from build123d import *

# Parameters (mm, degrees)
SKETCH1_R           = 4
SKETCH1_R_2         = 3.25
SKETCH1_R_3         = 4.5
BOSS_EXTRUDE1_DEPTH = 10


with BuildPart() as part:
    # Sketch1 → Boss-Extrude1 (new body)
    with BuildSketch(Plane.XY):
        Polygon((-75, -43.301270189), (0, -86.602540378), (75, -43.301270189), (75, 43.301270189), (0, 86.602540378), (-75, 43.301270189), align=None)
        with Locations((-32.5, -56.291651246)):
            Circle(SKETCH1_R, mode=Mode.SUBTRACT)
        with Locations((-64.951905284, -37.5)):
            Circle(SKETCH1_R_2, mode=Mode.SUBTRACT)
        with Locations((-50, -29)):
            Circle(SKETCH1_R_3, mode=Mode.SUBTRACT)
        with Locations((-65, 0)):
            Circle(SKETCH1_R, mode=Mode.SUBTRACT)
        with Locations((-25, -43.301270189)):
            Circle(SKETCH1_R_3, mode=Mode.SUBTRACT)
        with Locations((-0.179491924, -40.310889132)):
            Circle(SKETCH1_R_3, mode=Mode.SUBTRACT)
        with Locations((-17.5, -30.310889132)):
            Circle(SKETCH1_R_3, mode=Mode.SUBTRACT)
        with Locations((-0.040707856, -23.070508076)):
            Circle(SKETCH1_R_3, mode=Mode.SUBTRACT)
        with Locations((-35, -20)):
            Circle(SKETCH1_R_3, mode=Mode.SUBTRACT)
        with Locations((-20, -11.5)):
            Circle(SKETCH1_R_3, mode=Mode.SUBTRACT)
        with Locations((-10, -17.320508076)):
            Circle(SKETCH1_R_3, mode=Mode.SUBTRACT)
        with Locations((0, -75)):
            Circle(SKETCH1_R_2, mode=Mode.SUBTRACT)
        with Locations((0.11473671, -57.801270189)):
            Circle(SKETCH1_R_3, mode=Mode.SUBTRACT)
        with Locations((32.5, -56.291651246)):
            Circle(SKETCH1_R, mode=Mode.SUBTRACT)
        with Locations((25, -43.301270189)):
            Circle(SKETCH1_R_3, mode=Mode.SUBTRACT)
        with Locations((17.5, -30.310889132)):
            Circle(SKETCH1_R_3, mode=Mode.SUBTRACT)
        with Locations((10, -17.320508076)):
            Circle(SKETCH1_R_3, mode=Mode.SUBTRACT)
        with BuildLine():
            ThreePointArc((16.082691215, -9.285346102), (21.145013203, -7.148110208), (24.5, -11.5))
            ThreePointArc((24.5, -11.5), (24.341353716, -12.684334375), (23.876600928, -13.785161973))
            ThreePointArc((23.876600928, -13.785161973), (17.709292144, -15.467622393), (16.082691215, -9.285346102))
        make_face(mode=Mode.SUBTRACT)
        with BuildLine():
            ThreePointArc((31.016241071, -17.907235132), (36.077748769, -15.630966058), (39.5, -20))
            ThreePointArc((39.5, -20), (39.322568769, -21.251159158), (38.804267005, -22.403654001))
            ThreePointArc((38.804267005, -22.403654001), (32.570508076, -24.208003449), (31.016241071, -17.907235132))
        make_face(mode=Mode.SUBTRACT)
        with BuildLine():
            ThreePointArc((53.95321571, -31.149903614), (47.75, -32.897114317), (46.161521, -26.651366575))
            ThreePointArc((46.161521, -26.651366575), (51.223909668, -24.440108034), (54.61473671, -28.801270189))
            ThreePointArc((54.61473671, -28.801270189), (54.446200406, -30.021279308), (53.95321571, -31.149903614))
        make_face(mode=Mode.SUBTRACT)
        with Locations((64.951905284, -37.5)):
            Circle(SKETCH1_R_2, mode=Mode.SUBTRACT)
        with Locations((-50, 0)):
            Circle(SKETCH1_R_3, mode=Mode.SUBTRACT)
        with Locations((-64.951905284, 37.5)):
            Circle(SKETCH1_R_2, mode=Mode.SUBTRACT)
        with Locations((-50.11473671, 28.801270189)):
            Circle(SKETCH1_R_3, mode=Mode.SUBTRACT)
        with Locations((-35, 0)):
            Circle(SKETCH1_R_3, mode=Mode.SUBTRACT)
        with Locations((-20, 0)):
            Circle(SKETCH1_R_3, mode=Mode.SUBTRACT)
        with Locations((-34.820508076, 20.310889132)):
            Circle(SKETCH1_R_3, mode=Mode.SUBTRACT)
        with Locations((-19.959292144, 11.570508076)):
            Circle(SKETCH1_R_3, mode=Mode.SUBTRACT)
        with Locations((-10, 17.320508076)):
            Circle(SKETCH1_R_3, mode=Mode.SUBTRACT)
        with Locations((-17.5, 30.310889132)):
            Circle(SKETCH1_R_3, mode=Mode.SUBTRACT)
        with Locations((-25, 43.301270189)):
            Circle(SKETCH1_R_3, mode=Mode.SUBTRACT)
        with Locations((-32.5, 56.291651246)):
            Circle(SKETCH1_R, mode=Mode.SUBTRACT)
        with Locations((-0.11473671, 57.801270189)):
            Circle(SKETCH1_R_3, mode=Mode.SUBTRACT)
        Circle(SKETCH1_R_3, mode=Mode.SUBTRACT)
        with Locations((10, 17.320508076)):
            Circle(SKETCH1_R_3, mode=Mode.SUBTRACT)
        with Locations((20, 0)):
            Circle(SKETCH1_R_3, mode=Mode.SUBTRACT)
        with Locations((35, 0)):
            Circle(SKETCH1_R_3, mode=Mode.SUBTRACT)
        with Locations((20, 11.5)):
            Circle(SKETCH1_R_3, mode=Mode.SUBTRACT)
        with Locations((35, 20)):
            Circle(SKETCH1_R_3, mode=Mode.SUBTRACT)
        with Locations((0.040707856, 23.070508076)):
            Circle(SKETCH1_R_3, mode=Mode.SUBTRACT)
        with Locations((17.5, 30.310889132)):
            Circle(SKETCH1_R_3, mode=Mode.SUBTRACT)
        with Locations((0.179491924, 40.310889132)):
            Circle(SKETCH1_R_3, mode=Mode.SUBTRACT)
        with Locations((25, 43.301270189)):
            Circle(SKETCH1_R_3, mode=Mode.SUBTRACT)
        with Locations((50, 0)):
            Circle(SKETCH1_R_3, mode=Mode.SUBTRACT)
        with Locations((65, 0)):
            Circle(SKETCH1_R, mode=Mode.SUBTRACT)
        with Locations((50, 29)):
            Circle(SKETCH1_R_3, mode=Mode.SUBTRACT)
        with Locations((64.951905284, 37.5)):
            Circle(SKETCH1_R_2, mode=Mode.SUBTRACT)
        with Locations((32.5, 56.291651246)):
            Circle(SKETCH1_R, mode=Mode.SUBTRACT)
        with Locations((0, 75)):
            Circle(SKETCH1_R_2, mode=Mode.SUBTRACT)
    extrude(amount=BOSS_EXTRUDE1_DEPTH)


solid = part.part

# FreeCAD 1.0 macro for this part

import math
import FreeCAD as App
import Part
import Sketcher

V = App.Vector
Q = App.Units.Quantity


def add_polygon(sketch, points):
    """Adds a closed chain of lines whose ends are joined by coincident constraints."""
    first, n = sketch.GeometryCount, len(points)
    for a, b in zip(points, points[1:] + points[:1]):
        sketch.addGeometry(Part.LineSegment(App.Vector(*a, 0), App.Vector(*b, 0)), False)
    for i in range(n):
        sketch.addConstraint(Sketcher.Constraint("Coincident", first + i, 2, first + (i + 1) % n, 1))

doc = App.newDocument("Part")
body = doc.addObject("PartDesign::Body", "Body")

# Sketch on XY plane
sketch1 = doc.addObject("Sketcher::SketchObject", "Sketch")
body.addObject(sketch1)
sketch1.AttachmentSupport = (doc.XY_Plane, [""])
sketch1.MapMode = "FlatFace"
add_polygon(sketch1, [(-75, -43.3), (0, -86.6), (75, -43.3), (75, 43.3), (0, 86.6), (-75, 43.3)])  # lines 0-5
sketch1.addGeometry(Part.Circle(V(-32.5, -56.3, 0), V(0, 0, 1), 4), False)  # 6
sketch1.addGeometry(Part.Circle(V(-25, -43.3, 0), V(0, 0, 1), 4.5), False)  # 7
sketch1.addGeometry(Part.Circle(V(-0.2, -40.3, 0), V(0, 0, 1), 4.5), False)  # 8
sketch1.addGeometry(Part.Circle(V(-65, -37.5, 0), V(0, 0, 1), 3.2), False)  # 9
sketch1.addGeometry(Part.Circle(V(-50, -29, 0), V(0, 0, 1), 4.5), False)  # 10
sketch1.addGeometry(Part.Circle(V(-35, -20, 0), V(0, 0, 1), 4.5), False)  # 11
sketch1.addGeometry(Part.Circle(V(-17.5, -30.3, 0), V(0, 0, 1), 4.5), False)  # 12
sketch1.addGeometry(Part.Circle(V(0, -23.1, 0), V(0, 0, 1), 4.5), False)  # 13
sketch1.addGeometry(Part.Circle(V(-20, -11.5, 0), V(0, 0, 1), 4.5), False)  # 14
sketch1.addGeometry(Part.Circle(V(-10, -17.3, 0), V(0, 0, 1), 4.5), False)  # 15
sketch1.addGeometry(Part.Circle(V(0, -75, 0), V(0, 0, 1), 3.2), False)  # 16
sketch1.addGeometry(Part.Circle(V(0.1, -57.8, 0), V(0, 0, 1), 4.5), False)  # 17
sketch1.addGeometry(Part.Circle(V(32.5, -56.3, 0), V(0, 0, 1), 4), False)  # 18
sketch1.addGeometry(Part.Circle(V(25, -43.3, 0), V(0, 0, 1), 4.5), False)  # 19
sketch1.addGeometry(Part.Circle(V(17.5, -30.3, 0), V(0, 0, 1), 4.5), False)  # 20
sketch1.addGeometry(Part.Circle(V(10, -17.3, 0), V(0, 0, 1), 4.5), False)  # 21
sketch1.addGeometry(Part.ArcOfCircle(Part.Circle(V(20, -11.6, 0), V(0, 0, 1), 4.5), math.radians(149), math.radians(331)), False)  # 22
sketch1.addGeometry(Part.ArcOfCircle(Part.Circle(V(20, -11.5, 0), V(0, 0, 1), 4.5), math.radians(0), math.radians(151)), False)  # 23
sketch1.addGeometry(Part.ArcOfCircle(Part.Circle(V(20, -11.5, 0), V(0, 0, 1), 4.5), math.radians(-31), math.radians(0)), False)  # 24
sketch1.addGeometry(Part.ArcOfCircle(Part.Circle(V(34.8, -20.3, 0), V(0, 0, 1), 4.5), math.radians(148), math.radians(332)), False)  # 25
sketch1.addGeometry(Part.ArcOfCircle(Part.Circle(V(35, -20, 0), V(0, 0, 1), 4.5), math.radians(0), math.radians(152)), False)  # 26
sketch1.addGeometry(Part.ArcOfCircle(Part.Circle(V(35, -20, 0), V(0, 0, 1), 4.5), math.radians(-32), math.radians(0)), False)  # 27
sketch1.addGeometry(Part.ArcOfCircle(Part.Circle(V(50.1, -28.8, 0), V(0, 0, 1), 4.5), math.radians(-31), math.radians(0)), False)  # 28
sketch1.addGeometry(Part.ArcOfCircle(Part.Circle(V(50, -29, 0), V(0, 0, 1), 4.5), math.radians(149), math.radians(331)), False)  # 29
sketch1.addGeometry(Part.ArcOfCircle(Part.Circle(V(50.1, -28.8, 0), V(0, 0, 1), 4.5), math.radians(0), math.radians(151)), False)  # 30
sketch1.addGeometry(Part.Circle(V(65, -37.5, 0), V(0, 0, 1), 3.2), False)  # 31
sketch1.addGeometry(Part.Circle(V(-65, 0, 0), V(0, 0, 1), 4), False)  # 32
sketch1.addGeometry(Part.Circle(V(-50, 0, 0), V(0, 0, 1), 4.5), False)  # 33
sketch1.addGeometry(Part.Circle(V(-35, 0, 0), V(0, 0, 1), 4.5), False)  # 34
sketch1.addGeometry(Part.Circle(V(-65, 37.5, 0), V(0, 0, 1), 3.2), False)  # 35
sketch1.addGeometry(Part.Circle(V(-50.1, 28.8, 0), V(0, 0, 1), 4.5), False)  # 36
sketch1.addGeometry(Part.Circle(V(-34.8, 20.3, 0), V(0, 0, 1), 4.5), False)  # 37
sketch1.addGeometry(Part.Circle(V(-20, 0, 0), V(0, 0, 1), 4.5), False)  # 38
sketch1.addGeometry(Part.Circle(V(-20, 11.6, 0), V(0, 0, 1), 4.5), False)  # 39
sketch1.addGeometry(Part.Circle(V(-10, 17.3, 0), V(0, 0, 1), 4.5), False)  # 40
sketch1.addGeometry(Part.Circle(V(-17.5, 30.3, 0), V(0, 0, 1), 4.5), False)  # 41
sketch1.addGeometry(Part.Circle(V(-25, 43.3, 0), V(0, 0, 1), 4.5), False)  # 42
sketch1.addGeometry(Part.Circle(V(-32.5, 56.3, 0), V(0, 0, 1), 4), False)  # 43
sketch1.addGeometry(Part.Circle(V(-0.1, 57.8, 0), V(0, 0, 1), 4.5), False)  # 44
sketch1.addGeometry(Part.Circle(V(0, 0, 0), V(0, 0, 1), 4.5), False)  # 45
sketch1.addGeometry(Part.Circle(V(10, 17.3, 0), V(0, 0, 1), 4.5), False)  # 46
sketch1.addGeometry(Part.Circle(V(20, 0, 0), V(0, 0, 1), 4.5), False)  # 47
sketch1.addGeometry(Part.Circle(V(20, 11.5, 0), V(0, 0, 1), 4.5), False)  # 48
sketch1.addGeometry(Part.Circle(V(0, 23.1, 0), V(0, 0, 1), 4.5), False)  # 49
sketch1.addGeometry(Part.Circle(V(17.5, 30.3, 0), V(0, 0, 1), 4.5), False)  # 50
sketch1.addGeometry(Part.Circle(V(35, 0, 0), V(0, 0, 1), 4.5), False)  # 51
sketch1.addGeometry(Part.Circle(V(50, 0, 0), V(0, 0, 1), 4.5), False)  # 52
sketch1.addGeometry(Part.Circle(V(65, 0, 0), V(0, 0, 1), 4), False)  # 53
sketch1.addGeometry(Part.Circle(V(35, 20, 0), V(0, 0, 1), 4.5), False)  # 54
sketch1.addGeometry(Part.Circle(V(50, 29, 0), V(0, 0, 1), 4.5), False)  # 55
sketch1.addGeometry(Part.Circle(V(65, 37.5, 0), V(0, 0, 1), 3.2), False)  # 56
sketch1.addGeometry(Part.Circle(V(0.2, 40.3, 0), V(0, 0, 1), 4.5), False)  # 57
sketch1.addGeometry(Part.Circle(V(25, 43.3, 0), V(0, 0, 1), 4.5), False)  # 58
sketch1.addGeometry(Part.Circle(V(32.5, 56.3, 0), V(0, 0, 1), 4), False)  # 59
sketch1.addGeometry(Part.Circle(V(0, 75, 0), V(0, 0, 1), 3.2), False)  # 60
sketch1.addConstraint(Sketcher.Constraint("Coincident", 22, 1, 23, 2))
sketch1.addConstraint(Sketcher.Constraint("Tangent", 23, 1, 24, 2))
sketch1.addConstraint(Sketcher.Constraint("Coincident", 24, 1, 22, 2))
sketch1.addConstraint(Sketcher.Constraint("Coincident", 25, 1, 26, 2))
sketch1.addConstraint(Sketcher.Constraint("Tangent", 26, 1, 27, 2))
sketch1.addConstraint(Sketcher.Constraint("Coincident", 27, 1, 25, 2))
sketch1.addConstraint(Sketcher.Constraint("Coincident", 28, 1, 29, 2))
sketch1.addConstraint(Sketcher.Constraint("Coincident", 29, 1, 30, 2))
sketch1.addConstraint(Sketcher.Constraint("Tangent", 30, 1, 28, 2))
sketch1.addConstraint(Sketcher.Constraint("Vertical", 2))
sketch1.addConstraint(Sketcher.Constraint("Vertical", 5))
sketch1.addConstraint(Sketcher.Constraint("Coincident", 45, 3, -1, 1))
sketch1.addConstraint(Sketcher.Constraint("Equal", 7, 8))
sketch1.addConstraint(Sketcher.Constraint("Equal", 8, 10))
sketch1.addConstraint(Sketcher.Constraint("Equal", 10, 11))
sketch1.addConstraint(Sketcher.Constraint("Equal", 11, 12))
sketch1.addConstraint(Sketcher.Constraint("Equal", 12, 13))
sketch1.addConstraint(Sketcher.Constraint("Equal", 13, 14))
sketch1.addConstraint(Sketcher.Constraint("Equal", 14, 15))
sketch1.addConstraint(Sketcher.Constraint("Equal", 9, 16))
sketch1.addConstraint(Sketcher.Constraint("Equal", 15, 17))
sketch1.addConstraint(Sketcher.Constraint("Equal", 6, 18))
sketch1.addConstraint(Sketcher.Constraint("Equal", 17, 19))
sketch1.addConstraint(Sketcher.Constraint("Equal", 19, 20))
sketch1.addConstraint(Sketcher.Constraint("Equal", 20, 21))
sketch1.addConstraint(Sketcher.Constraint("Equal", 21, 22))
sketch1.addConstraint(Sketcher.Constraint("Equal", 22, 23))
sketch1.addConstraint(Sketcher.Constraint("Equal", 23, 24))
sketch1.addConstraint(Sketcher.Constraint("Equal", 24, 25))
sketch1.addConstraint(Sketcher.Constraint("Equal", 25, 26))
sketch1.addConstraint(Sketcher.Constraint("Equal", 26, 27))
sketch1.addConstraint(Sketcher.Constraint("Equal", 27, 28))
sketch1.addConstraint(Sketcher.Constraint("Equal", 28, 29))
sketch1.addConstraint(Sketcher.Constraint("Equal", 29, 30))
sketch1.addConstraint(Sketcher.Constraint("Equal", 16, 31))
sketch1.addConstraint(Sketcher.Constraint("Equal", 18, 32))
sketch1.addConstraint(Sketcher.Constraint("Equal", 30, 33))
sketch1.addConstraint(Sketcher.Constraint("Equal", 33, 34))
sketch1.addConstraint(Sketcher.Constraint("Equal", 31, 35))
sketch1.addConstraint(Sketcher.Constraint("Equal", 34, 36))
sketch1.addConstraint(Sketcher.Constraint("Equal", 36, 37))
sketch1.addConstraint(Sketcher.Constraint("Equal", 37, 38))
sketch1.addConstraint(Sketcher.Constraint("Equal", 38, 39))
sketch1.addConstraint(Sketcher.Constraint("Equal", 39, 40))
sketch1.addConstraint(Sketcher.Constraint("Equal", 40, 41))
sketch1.addConstraint(Sketcher.Constraint("Equal", 41, 42))
sketch1.addConstraint(Sketcher.Constraint("Equal", 32, 43))
sketch1.addConstraint(Sketcher.Constraint("Equal", 42, 44))
sketch1.addConstraint(Sketcher.Constraint("Equal", 44, 45))
sketch1.addConstraint(Sketcher.Constraint("Equal", 45, 46))
sketch1.addConstraint(Sketcher.Constraint("Equal", 46, 47))
sketch1.addConstraint(Sketcher.Constraint("Equal", 47, 48))
sketch1.addConstraint(Sketcher.Constraint("Equal", 48, 49))
sketch1.addConstraint(Sketcher.Constraint("Equal", 49, 50))
sketch1.addConstraint(Sketcher.Constraint("Equal", 50, 51))
sketch1.addConstraint(Sketcher.Constraint("Equal", 51, 52))
sketch1.addConstraint(Sketcher.Constraint("Equal", 43, 53))
sketch1.addConstraint(Sketcher.Constraint("Equal", 52, 54))
sketch1.addConstraint(Sketcher.Constraint("Equal", 54, 55))
sketch1.addConstraint(Sketcher.Constraint("Equal", 35, 56))
sketch1.addConstraint(Sketcher.Constraint("Equal", 55, 57))
sketch1.addConstraint(Sketcher.Constraint("Equal", 57, 58))
sketch1.addConstraint(Sketcher.Constraint("Equal", 53, 59))
sketch1.addConstraint(Sketcher.Constraint("Equal", 56, 60))
sketch1.addConstraint(Sketcher.Constraint("Symmetric", 31, 3, 35, 3, -1, 1))
sketch1.addConstraint(Sketcher.Constraint("Symmetric", 28, 3, 36, 3, -1, 1))
sketch1.addConstraint(Sketcher.Constraint("Symmetric", 25, 3, 37, 3, -1, 1))
sketch1.addConstraint(Sketcher.Constraint("Symmetric", 22, 3, 39, 3, -1, 1))
sketch1.addConstraint(Sketcher.Constraint("Symmetric", 21, 3, 40, 3, -1, 1))
sketch1.addConstraint(Sketcher.Constraint("Symmetric", 20, 3, 41, 3, -1, 1))
sketch1.addConstraint(Sketcher.Constraint("Symmetric", 19, 3, 42, 3, -1, 1))
sketch1.addConstraint(Sketcher.Constraint("Symmetric", 18, 3, 43, 3, -1, 1))
sketch1.addConstraint(Sketcher.Constraint("Symmetric", 17, 3, 44, 3, -1, 1))
sketch1.addConstraint(Sketcher.Constraint("Symmetric", 15, 3, 46, 3, -1, 1))
sketch1.addConstraint(Sketcher.Constraint("Symmetric", 38, 3, 47, 3, -1, 1))
sketch1.addConstraint(Sketcher.Constraint("Symmetric", 14, 3, 48, 3, -1, 1))
sketch1.addConstraint(Sketcher.Constraint("Symmetric", 13, 3, 49, 3, -1, 1))
sketch1.addConstraint(Sketcher.Constraint("Symmetric", 12, 3, 50, 3, -1, 1))
sketch1.addConstraint(Sketcher.Constraint("Symmetric", 34, 3, 51, 3, -1, 1))
sketch1.addConstraint(Sketcher.Constraint("Symmetric", 33, 3, 52, 3, -1, 1))
sketch1.addConstraint(Sketcher.Constraint("Symmetric", 32, 3, 53, 3, -1, 1))
sketch1.addConstraint(Sketcher.Constraint("Symmetric", 11, 3, 54, 3, -1, 1))
sketch1.addConstraint(Sketcher.Constraint("Symmetric", 10, 3, 55, 3, -1, 1))
sketch1.addConstraint(Sketcher.Constraint("Symmetric", 9, 3, 56, 3, -1, 1))
sketch1.addConstraint(Sketcher.Constraint("Symmetric", 8, 3, 57, 3, -1, 1))
sketch1.addConstraint(Sketcher.Constraint("Symmetric", 7, 3, 58, 3, -1, 1))
sketch1.addConstraint(Sketcher.Constraint("Symmetric", 6, 3, 59, 3, -1, 1))
sketch1.addConstraint(Sketcher.Constraint("Symmetric", 16, 3, 60, 3, -1, 1))
sketch1.addConstraint(Sketcher.Constraint("Symmetric", 0, 2, 3, 2, -1, 1))
sketch1.addConstraint(Sketcher.Constraint("Symmetric", 1, 2, 4, 2, -1, 1))
sketch1.addConstraint(Sketcher.Constraint("Symmetric", 6, 3, 18, 3, -2))
sketch1.addConstraint(Sketcher.Constraint("Symmetric", 7, 3, 19, 3, -2))
sketch1.addConstraint(Sketcher.Constraint("Symmetric", 12, 3, 20, 3, -2))
sketch1.addConstraint(Sketcher.Constraint("Symmetric", 15, 3, 21, 3, -2))
sketch1.addConstraint(Sketcher.Constraint("Symmetric", 14, 3, 23, 3, -2))
sketch1.addConstraint(Sketcher.Constraint("Symmetric", 11, 3, 26, 3, -2))
sketch1.addConstraint(Sketcher.Constraint("Symmetric", 10, 3, 29, 3, -2))
sketch1.addConstraint(Sketcher.Constraint("Symmetric", 9, 3, 31, 3, -2))
sketch1.addConstraint(Sketcher.Constraint("PointOnObject", 16, 3, -2))
sketch1.addConstraint(Sketcher.Constraint("PointOnObject", 32, 3, -1))
sketch1.addConstraint(Sketcher.Constraint("PointOnObject", 33, 3, -1))
sketch1.addConstraint(Sketcher.Constraint("PointOnObject", 34, 3, -1))
sketch1.addConstraint(Sketcher.Constraint("PointOnObject", 38, 3, -1))
sketch1.addConstraint(Sketcher.Constraint("PointOnObject", 0, 2, -2))
sketch1.addConstraint(Sketcher.Constraint("Parallel", 0, 3))
sketch1.addConstraint(Sketcher.Constraint("Horizontal", 19, 3, 1, 2))
sketch1.addConstraint(Sketcher.Constraint("Horizontal", 58, 3, 2, 2))
sketch1.addConstraint(Sketcher.Constraint("Horizontal", 24, 3, 23, 1))
sketch1.addConstraint(Sketcher.Constraint("Horizontal", 27, 3, 26, 1))
sketch1.addConstraint(Sketcher.Constraint("Horizontal", 28, 3, 30, 1))
sketch1.addConstraint(Sketcher.Constraint("Vertical", 10, 3, 33, 3))
sketch1.addConstraint(Sketcher.Constraint("Vertical", 11, 3, 34, 3))
sketch1.addConstraint(Sketcher.Constraint("Vertical", 14, 3, 38, 3))
sketch1.addConstraint(Sketcher.Constraint("Diameter", 6, 8.0))
sketch1.addConstraint(Sketcher.Constraint("Diameter", 7, 9.0))
sketch1.addConstraint(Sketcher.Constraint("Diameter", 9, 6.5))
sketch1.addConstraint(Sketcher.Constraint("Angle", 0, Q("-30 deg")))
sketch1.addConstraint(Sketcher.Constraint("DistanceX", 7, 3, -1, 1, 25.0))
sketch1.addConstraint(Sketcher.Constraint("DistanceX", 10, 3, -1, 1, 50.0))
sketch1.addConstraint(Sketcher.Constraint("DistanceY", 10, 3, -1, 1, 29.0))
sketch1.addConstraint(Sketcher.Constraint("DistanceX", 11, 3, -1, 1, 35.0))
sketch1.addConstraint(Sketcher.Constraint("DistanceY", 11, 3, -1, 1, 20.0))
sketch1.addConstraint(Sketcher.Constraint("DistanceX", 14, 3, -1, 1, 20.0))
sketch1.addConstraint(Sketcher.Constraint("DistanceX", 15, 3, -1, 1, 10.0))
sketch1.addConstraint(Sketcher.Constraint("DistanceY", 16, 3, -1, 1, 75.0))
sketch1.addConstraint(Sketcher.Constraint("DistanceX", 32, 3, -1, 1, 65.0))
sketch1.addConstraint(Sketcher.Constraint("DistanceX", -1, 1, 1, 2, 75.0))
sketch1.addConstraint(Sketcher.Constraint("DistanceX", 6, 3, -1, 1, 32.5))
sketch1.addConstraint(Sketcher.Constraint("DistanceY", 9, 3, -1, 1, 37.5))
sketch1.addConstraint(Sketcher.Constraint("DistanceX", 12, 3, -1, 1, 17.5))
sketch1.addConstraint(Sketcher.Constraint("DistanceY", 14, 3, -1, 1, 11.5))
sketch1.addConstraint(Sketcher.Constraint("DistanceY", 2, 1, 2, 2, 86.60254))
sketch1.addConstraint(Sketcher.Constraint("DistanceX", -1, 1, 24, 1, 23.876601))
sketch1.addConstraint(Sketcher.Constraint("DistanceY", 6, 3, -1, 1, 56.291651))
sketch1.addConstraint(Sketcher.Constraint("DistanceX", 8, 3, -1, 1, 0.179492))
sketch1.addConstraint(Sketcher.Constraint("DistanceY", 8, 3, -1, 1, 40.310889))
sketch1.addConstraint(Sketcher.Constraint("DistanceY", 12, 3, -1, 1, 30.310889))
sketch1.addConstraint(Sketcher.Constraint("DistanceY", 13, 3, -1, 1, 23.070508))
sketch1.addConstraint(Sketcher.Constraint("DistanceY", 15, 3, -1, 1, 17.320508))
sketch1.addConstraint(Sketcher.Constraint("DistanceY", 17, 3, -1, 1, 57.80127))
sketch1.addConstraint(Sketcher.Constraint("DistanceY", 22, 3, -1, 1, 11.570508))
sketch1.addConstraint(Sketcher.Constraint("DistanceX", -1, 1, 25, 3, 34.820508))
sketch1.addConstraint(Sketcher.Constraint("DistanceY", 25, 3, -1, 1, 20.310889))
sketch1.addConstraint(Sketcher.Constraint("DistanceY", 28, 3, -1, 1, 28.80127))
sketch1.addConstraint(Sketcher.Constraint("DistanceX", -1, 1, 29, 1, 46.161521))
sketch1.addConstraint(Sketcher.Constraint("DistanceX", 9, 3, -1, 1, 64.951905))
sketch1.addConstraint(Sketcher.Constraint("DistanceX", 13, 3, -1, 1, 0.040708))
sketch1.addConstraint(Sketcher.Constraint("DistanceX", -1, 1, 17, 3, 0.114737))
pad1 = doc.addObject("PartDesign::Pad", "Pad")
body.addObject(pad1)
pad1.Profile = sketch1
pad1.Length = 10

doc.recompute()
